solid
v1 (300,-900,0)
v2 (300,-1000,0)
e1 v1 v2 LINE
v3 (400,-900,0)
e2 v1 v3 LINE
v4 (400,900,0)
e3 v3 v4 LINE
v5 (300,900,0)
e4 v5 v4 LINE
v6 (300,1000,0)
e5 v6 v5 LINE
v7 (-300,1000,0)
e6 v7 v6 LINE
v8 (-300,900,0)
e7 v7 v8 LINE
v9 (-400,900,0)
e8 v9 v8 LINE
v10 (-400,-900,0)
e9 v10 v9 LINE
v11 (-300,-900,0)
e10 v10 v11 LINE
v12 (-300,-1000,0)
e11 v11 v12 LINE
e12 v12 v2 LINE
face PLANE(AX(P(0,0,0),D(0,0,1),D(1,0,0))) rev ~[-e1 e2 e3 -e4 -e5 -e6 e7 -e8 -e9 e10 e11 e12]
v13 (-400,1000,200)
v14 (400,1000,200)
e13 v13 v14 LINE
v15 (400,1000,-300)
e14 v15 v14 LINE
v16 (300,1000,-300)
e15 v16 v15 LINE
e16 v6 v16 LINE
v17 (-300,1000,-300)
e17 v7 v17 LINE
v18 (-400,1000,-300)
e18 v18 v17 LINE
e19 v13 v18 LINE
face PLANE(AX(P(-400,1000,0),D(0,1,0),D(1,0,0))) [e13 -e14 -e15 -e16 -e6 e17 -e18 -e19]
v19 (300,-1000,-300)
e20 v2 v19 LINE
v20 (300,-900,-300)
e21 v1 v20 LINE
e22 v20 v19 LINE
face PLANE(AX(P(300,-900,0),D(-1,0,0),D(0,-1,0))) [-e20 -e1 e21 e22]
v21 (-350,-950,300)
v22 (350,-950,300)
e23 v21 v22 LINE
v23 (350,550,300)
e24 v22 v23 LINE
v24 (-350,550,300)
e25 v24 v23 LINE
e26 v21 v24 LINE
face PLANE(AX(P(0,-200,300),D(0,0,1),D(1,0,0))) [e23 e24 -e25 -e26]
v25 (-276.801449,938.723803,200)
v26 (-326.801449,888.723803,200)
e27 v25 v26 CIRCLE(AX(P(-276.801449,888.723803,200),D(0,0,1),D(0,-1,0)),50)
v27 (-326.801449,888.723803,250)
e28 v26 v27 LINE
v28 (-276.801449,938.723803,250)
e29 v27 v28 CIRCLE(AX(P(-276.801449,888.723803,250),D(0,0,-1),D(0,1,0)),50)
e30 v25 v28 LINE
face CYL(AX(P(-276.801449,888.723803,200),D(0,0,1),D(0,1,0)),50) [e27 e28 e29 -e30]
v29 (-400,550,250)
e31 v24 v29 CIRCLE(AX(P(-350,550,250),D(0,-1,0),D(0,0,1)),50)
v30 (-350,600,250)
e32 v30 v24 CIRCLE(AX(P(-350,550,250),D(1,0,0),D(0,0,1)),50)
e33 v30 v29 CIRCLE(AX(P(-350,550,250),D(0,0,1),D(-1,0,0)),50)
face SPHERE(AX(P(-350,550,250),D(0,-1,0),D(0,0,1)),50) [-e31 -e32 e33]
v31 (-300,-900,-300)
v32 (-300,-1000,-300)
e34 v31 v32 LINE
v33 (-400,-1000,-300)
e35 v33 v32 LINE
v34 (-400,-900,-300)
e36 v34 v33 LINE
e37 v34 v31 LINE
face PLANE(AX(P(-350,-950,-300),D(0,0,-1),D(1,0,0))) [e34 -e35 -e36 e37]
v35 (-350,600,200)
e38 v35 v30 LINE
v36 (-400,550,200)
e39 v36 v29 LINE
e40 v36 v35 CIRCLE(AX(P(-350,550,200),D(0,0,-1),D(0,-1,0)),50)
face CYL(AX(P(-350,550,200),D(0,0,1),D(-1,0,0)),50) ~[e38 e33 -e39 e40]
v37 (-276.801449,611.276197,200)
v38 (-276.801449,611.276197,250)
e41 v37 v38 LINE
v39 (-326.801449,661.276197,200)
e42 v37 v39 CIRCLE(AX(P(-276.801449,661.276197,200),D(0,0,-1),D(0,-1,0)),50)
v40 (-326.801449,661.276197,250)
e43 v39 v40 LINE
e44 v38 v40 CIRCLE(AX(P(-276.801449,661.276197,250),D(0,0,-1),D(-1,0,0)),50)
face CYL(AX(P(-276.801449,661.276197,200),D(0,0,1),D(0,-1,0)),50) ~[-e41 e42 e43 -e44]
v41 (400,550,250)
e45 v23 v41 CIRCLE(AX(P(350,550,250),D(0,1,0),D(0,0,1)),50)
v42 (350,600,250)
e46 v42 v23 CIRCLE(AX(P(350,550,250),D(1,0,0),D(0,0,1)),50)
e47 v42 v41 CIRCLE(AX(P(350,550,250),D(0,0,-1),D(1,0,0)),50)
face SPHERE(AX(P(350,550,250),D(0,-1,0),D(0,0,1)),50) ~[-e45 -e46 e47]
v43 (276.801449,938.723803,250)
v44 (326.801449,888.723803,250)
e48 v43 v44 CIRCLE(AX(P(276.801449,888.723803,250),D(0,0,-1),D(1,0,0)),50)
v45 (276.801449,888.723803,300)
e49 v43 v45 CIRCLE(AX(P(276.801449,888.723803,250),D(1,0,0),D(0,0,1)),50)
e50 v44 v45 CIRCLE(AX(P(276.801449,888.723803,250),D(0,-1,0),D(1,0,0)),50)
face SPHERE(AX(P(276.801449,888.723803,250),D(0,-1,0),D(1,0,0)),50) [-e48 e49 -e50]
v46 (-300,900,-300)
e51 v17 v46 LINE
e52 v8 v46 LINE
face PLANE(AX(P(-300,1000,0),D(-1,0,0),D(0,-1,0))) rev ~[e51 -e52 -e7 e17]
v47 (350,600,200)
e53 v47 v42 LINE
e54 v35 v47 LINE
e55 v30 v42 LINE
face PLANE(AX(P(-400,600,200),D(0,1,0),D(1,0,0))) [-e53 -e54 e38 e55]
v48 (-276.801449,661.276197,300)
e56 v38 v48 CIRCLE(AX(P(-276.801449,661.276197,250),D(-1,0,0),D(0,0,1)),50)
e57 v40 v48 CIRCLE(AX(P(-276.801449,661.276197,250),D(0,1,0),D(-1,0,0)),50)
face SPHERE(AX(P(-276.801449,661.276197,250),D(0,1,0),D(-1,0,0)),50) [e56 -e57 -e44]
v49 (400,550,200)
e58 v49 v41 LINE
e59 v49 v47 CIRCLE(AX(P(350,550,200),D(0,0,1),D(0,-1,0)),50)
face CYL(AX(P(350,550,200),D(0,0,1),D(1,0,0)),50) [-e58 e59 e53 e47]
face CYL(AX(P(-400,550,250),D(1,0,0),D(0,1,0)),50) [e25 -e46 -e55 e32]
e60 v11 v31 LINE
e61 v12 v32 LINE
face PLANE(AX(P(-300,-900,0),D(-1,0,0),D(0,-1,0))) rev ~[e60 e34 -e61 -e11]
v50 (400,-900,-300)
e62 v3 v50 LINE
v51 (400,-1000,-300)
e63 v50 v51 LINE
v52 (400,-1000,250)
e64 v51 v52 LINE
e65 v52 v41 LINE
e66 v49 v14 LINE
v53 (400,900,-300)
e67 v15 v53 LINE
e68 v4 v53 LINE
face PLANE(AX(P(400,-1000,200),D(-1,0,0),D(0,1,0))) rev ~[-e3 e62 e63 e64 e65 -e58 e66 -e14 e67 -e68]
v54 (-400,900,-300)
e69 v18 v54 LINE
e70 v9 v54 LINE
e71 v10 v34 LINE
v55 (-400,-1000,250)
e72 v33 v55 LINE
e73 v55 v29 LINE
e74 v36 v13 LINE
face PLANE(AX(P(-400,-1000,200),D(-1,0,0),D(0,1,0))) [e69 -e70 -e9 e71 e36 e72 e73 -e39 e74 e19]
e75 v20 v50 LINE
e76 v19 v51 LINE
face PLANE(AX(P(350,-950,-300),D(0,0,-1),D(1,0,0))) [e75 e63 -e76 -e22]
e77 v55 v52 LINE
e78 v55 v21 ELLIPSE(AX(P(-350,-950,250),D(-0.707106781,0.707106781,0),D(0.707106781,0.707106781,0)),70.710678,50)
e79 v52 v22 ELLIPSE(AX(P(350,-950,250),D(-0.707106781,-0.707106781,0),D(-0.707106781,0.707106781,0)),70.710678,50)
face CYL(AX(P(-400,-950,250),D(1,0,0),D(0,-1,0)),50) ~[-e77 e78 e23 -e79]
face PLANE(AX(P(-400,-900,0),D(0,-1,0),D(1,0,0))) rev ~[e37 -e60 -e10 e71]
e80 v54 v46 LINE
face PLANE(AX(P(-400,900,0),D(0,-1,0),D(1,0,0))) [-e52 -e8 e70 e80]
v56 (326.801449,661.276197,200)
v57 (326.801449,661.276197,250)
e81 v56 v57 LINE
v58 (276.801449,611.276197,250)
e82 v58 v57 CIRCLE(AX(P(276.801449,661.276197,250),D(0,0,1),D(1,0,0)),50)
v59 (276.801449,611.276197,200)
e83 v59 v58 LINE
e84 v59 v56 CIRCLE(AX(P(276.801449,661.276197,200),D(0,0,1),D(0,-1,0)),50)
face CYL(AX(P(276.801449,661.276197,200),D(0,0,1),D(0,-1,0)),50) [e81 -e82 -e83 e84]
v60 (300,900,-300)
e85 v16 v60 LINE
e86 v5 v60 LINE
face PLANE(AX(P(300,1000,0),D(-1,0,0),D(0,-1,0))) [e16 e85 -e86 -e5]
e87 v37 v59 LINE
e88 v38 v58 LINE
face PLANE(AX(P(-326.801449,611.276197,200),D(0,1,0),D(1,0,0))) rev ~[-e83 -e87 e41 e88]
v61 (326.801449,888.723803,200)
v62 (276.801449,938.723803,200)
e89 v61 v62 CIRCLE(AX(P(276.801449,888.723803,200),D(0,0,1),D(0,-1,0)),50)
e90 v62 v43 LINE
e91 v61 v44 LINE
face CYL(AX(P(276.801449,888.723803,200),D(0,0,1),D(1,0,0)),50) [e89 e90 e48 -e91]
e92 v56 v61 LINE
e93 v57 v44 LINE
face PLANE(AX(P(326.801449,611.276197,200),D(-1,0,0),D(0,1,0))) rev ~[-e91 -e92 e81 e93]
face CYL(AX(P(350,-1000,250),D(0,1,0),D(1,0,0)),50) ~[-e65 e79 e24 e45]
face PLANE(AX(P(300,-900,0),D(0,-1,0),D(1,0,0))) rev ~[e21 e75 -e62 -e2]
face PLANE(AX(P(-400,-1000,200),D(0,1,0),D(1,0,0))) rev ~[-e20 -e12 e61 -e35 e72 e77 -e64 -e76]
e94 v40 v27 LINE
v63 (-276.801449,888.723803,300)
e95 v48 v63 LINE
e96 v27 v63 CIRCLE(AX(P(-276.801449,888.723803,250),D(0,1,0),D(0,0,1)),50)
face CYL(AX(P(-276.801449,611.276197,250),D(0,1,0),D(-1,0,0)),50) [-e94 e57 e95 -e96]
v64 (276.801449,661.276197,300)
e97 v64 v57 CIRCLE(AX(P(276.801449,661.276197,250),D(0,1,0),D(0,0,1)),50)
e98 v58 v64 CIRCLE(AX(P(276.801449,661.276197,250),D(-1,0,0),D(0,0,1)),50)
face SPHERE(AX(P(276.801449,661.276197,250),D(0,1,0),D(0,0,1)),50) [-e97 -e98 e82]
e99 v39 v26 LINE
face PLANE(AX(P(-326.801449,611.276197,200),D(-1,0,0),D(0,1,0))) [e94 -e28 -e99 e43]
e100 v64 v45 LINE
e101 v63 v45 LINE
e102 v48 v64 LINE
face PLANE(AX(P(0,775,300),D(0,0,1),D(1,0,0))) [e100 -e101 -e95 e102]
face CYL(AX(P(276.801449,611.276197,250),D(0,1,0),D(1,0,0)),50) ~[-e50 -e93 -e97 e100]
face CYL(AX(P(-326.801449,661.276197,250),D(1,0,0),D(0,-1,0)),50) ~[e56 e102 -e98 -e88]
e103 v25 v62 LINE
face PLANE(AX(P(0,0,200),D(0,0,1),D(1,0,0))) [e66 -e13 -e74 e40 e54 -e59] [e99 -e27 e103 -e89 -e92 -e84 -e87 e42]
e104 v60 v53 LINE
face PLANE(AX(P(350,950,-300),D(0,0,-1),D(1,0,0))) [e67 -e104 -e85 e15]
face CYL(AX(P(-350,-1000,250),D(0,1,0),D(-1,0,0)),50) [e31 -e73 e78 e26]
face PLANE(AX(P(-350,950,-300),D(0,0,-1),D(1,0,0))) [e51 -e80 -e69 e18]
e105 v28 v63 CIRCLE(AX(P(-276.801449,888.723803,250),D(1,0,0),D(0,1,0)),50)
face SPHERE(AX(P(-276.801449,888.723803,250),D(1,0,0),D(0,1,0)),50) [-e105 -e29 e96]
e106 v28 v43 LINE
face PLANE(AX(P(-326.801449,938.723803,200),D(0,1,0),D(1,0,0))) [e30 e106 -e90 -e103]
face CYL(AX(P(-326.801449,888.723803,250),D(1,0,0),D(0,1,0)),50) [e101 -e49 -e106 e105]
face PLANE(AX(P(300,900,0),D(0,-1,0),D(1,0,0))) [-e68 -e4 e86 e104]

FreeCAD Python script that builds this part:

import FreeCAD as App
import Part
import Sketcher
from FreeCAD import Vector


def edges_at(feature, points):
    """Names of the edges that pass closest to the given points."""
    edges = feature.Shape.Edges
    near = lambda p: min(range(len(edges)), key=lambda i: edges[i].distToShape(Part.Vertex(*p))[0])
    return sorted({f"Edge{near(p) + 1}" for p in points})


def add_polygon(sketch, points):
    """Adds a closed chain of lines whose ends are joined by coincident constraints."""
    first, n = sketch.GeometryCount, len(points)
    for a, b in zip(points, points[1:] + points[:1]):
        sketch.addGeometry(Part.LineSegment(App.Vector(*a, 0), App.Vector(*b, 0)), False)
    for i in range(n):
        sketch.addConstraint(Sketcher.Constraint("Coincident", first + i, 2, first + (i + 1) % n, 1))

doc = App.newDocument("Part")
body = doc.addObject("PartDesign::Body", "Body")

sketch1 = body.newObject("Sketcher::SketchObject", "Sketch")
sketch1.AttachmentSupport = (doc.getObject("XY_Plane"), [""])
sketch1.MapMode = "FlatFace"
add_polygon(sketch1, [(-400, 1000), (-400, -1000), (400, -1000), (400, 1000)])
sketch1.addConstraint([
    Sketcher.Constraint("Vertical", 0),
    Sketcher.Constraint("Horizontal", 1),
    Sketcher.Constraint("Vertical", 2),
    Sketcher.Constraint("Horizontal", 3),
    Sketcher.Constraint("Symmetric", 0, 2, 2, 2, -1, 1),
    Sketcher.Constraint("DistanceX", 1, 1, 1, 2, 800.0),
    Sketcher.Constraint("DistanceY", 0, 2, 0, 1, 2000.0),
])
pad1 = body.newObject("PartDesign::Pad", "Pad")
pad1.Profile = sketch1
pad1.Length = 200

sketch2 = body.newObject("Sketcher::SketchObject", "Sketch001")
sketch2.AttachmentSupport = (doc.getObject("XY_Plane"), [""])
sketch2.MapMode = "FlatFace"
add_polygon(sketch2, [(300, -1000), (300, -900), (400, -900), (400, -1000)])
add_polygon(sketch2, [(-400, -1000), (-400, -900), (-300, -900), (-300, -1000)])
add_polygon(sketch2, [(-400, 900), (-400, 1000), (-300, 1000), (-300, 900)])
add_polygon(sketch2, [(300, 900), (300, 1000), (400, 1000), (400, 900)])
sketch2.addConstraint([
    Sketcher.Constraint("Vertical", 0),
    Sketcher.Constraint("Horizontal", 1),
    Sketcher.Constraint("Vertical", 2),
    Sketcher.Constraint("Horizontal", 3),
    Sketcher.Constraint("Vertical", 4),
    Sketcher.Constraint("Horizontal", 5),
    Sketcher.Constraint("Vertical", 6),
    Sketcher.Constraint("Horizontal", 7),
    Sketcher.Constraint("Vertical", 8),
    Sketcher.Constraint("Horizontal", 9),
    Sketcher.Constraint("Vertical", 10),
    Sketcher.Constraint("Horizontal", 11),
    Sketcher.Constraint("Vertical", 12),
    Sketcher.Constraint("Horizontal", 13),
    Sketcher.Constraint("Vertical", 14),
    Sketcher.Constraint("Horizontal", 15),
    Sketcher.Constraint("Symmetric", 2, 2, 8, 2, -1, 1),
    Sketcher.Constraint("Symmetric", 0, 2, 10, 2, -1, 1),
    Sketcher.Constraint("Symmetric", 6, 2, 12, 2, -1, 1),
    Sketcher.Constraint("Symmetric", 4, 2, 14, 2, -1, 1),
    Sketcher.Constraint("Symmetric", 1, 2, 4, 2, -2),
    Sketcher.Constraint("Symmetric", 3, 2, 6, 2, -2),
    Sketcher.Constraint("Equal", 15, 0),
    Sketcher.Constraint("DistanceX", 1, 1, 1, 2, 100.0),
    Sketcher.Constraint("DistanceX", -1, 1, 0, 2, 300.0),
    Sketcher.Constraint("DistanceY", 0, 2, -1, 1, 900.0),
])
pad2 = body.newObject("PartDesign::Pad", "Pad001")
pad2.Profile = sketch2
pad2.Length = 300
pad2.Reversed = True

sketch3 = body.newObject("Sketcher::SketchObject", "Sketch002")
sketch3.AttachmentSupport = (doc.getObject("XY_Plane"), [""])
sketch3.MapMode = "FlatFace"
sketch3.AttachmentOffset = App.Placement(Vector(0, 0, 200), App.Rotation())
add_polygon(sketch3, [(-400, 600), (-400, -1000), (400, -1000), (400, 600)])
sketch3.addConstraint([
    Sketcher.Constraint("Vertical", 0),
    Sketcher.Constraint("Horizontal", 1),
    Sketcher.Constraint("Vertical", 2),
    Sketcher.Constraint("Horizontal", 3),
    Sketcher.Constraint("DistanceX", 1, 1, 1, 2, 800.0),
    Sketcher.Constraint("DistanceY", 0, 2, 0, 1, 1600.0),
    Sketcher.Constraint("DistanceX", 0, 2, -1, 1, 400.0),
    Sketcher.Constraint("DistanceY", 0, 2, -1, 1, 1000.0),
])
pad3 = body.newObject("PartDesign::Pad", "Pad002")
pad3.Profile = sketch3
pad3.Length = 100
doc.recompute()

fillet = body.newObject("PartDesign::Fillet", "Fillet")
fillet.Base = (pad3, edges_at(pad3, [
    (400, -200, 300),
    (0, -1000, 300),
    (-400, -200, 300),
    (0, 600, 300),
    (400, 600, 250),
    (-400, 600, 250),
]))
fillet.Radius = 50

sketch4 = body.newObject("Sketcher::SketchObject", "Sketch003")
sketch4.AttachmentSupport = (doc.getObject("XY_Plane"), [""])
sketch4.MapMode = "FlatFace"
sketch4.AttachmentOffset = App.Placement(Vector(0, 0, 200), App.Rotation())
add_polygon(sketch4, [(-326.801449, 938.723803), (-326.801449, 611.276197), (326.801449, 611.276197), (326.801449, 938.723803)])
sketch4.addConstraint([
    Sketcher.Constraint("Vertical", 0),
    Sketcher.Constraint("Horizontal", 1),
    Sketcher.Constraint("Vertical", 2),
    Sketcher.Constraint("Horizontal", 3),
    Sketcher.Constraint("DistanceX", 1, 1, 1, 2, 653.602898),
    Sketcher.Constraint("DistanceY", 0, 2, 0, 1, 327.447605),
    Sketcher.Constraint("DistanceX", 0, 2, -1, 1, 326.801449),
    Sketcher.Constraint("DistanceY", -1, 1, 0, 2, 611.276197),
])
pad4 = body.newObject("PartDesign::Pad", "Pad003")
pad4.Profile = sketch4
pad4.Length = 100
doc.recompute()

fillet2 = body.newObject("PartDesign::Fillet", "Fillet001")
fillet2.Base = (pad4, edges_at(pad4, [
    (326.801, 775, 300),
    (326.801, 938.724, 250),
    (0, 938.724, 300),
    (-326.801, 938.724, 250),
    (-326.801, 775, 300),
    (-326.801, 611.276, 250),
    (0, 611.276, 300),
    (326.801, 611.276, 250),
]))
fillet2.Radius = 50

doc.recompute()
